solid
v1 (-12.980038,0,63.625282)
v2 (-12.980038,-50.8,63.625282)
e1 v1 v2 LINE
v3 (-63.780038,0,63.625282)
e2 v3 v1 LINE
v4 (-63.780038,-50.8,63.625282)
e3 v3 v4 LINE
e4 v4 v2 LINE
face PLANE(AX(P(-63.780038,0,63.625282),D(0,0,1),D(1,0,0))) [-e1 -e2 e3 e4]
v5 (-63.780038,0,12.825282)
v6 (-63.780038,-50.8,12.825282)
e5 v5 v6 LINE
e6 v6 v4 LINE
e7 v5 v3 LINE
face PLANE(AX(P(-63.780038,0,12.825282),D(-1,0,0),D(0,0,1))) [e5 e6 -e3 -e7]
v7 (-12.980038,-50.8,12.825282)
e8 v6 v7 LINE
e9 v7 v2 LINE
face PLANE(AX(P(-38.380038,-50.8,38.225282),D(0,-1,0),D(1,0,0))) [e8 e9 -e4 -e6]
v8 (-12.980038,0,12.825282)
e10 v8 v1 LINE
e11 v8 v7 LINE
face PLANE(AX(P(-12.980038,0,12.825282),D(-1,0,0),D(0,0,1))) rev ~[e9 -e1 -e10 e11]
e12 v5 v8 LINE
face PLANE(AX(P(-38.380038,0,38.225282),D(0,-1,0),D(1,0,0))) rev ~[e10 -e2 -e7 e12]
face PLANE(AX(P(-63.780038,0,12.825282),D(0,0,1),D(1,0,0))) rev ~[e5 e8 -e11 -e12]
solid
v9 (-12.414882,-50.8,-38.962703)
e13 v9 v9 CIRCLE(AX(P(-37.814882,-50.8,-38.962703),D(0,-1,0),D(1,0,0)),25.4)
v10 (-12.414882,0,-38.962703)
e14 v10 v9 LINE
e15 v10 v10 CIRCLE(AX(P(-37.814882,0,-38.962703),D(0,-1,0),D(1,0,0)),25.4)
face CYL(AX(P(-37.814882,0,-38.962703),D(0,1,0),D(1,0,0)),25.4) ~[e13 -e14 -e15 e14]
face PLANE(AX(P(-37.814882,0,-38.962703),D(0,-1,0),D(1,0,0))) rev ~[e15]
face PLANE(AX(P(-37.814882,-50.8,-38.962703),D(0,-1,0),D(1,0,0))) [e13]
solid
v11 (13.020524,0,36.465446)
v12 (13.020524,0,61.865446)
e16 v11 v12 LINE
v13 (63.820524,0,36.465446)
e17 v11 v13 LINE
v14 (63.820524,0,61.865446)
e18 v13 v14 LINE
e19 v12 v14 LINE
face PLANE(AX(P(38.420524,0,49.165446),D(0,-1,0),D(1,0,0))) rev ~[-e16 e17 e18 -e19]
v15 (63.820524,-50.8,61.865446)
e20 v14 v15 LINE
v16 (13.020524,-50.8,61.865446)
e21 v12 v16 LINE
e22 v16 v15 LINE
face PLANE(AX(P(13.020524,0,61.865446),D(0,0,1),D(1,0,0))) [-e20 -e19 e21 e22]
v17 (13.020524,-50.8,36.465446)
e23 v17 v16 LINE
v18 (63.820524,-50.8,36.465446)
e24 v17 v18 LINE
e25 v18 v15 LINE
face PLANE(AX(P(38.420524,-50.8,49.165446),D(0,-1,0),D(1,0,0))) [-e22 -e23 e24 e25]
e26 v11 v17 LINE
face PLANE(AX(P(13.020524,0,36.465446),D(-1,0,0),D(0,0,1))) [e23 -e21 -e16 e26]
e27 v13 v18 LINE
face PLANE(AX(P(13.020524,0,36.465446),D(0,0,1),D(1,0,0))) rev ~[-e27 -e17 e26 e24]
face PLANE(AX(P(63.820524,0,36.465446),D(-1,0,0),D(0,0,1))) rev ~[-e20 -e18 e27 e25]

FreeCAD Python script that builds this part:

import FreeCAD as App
import Part
import Sketcher
from FreeCAD import Vector
Q = App.Units.Quantity

doc = App.newDocument("Part")
body = doc.addObject("PartDesign::Body", "Body")
body.AllowCompound = True

sketch1 = doc.addObject("Sketcher::SketchObject", "Sketch")
body.addObject(sketch1)
sketch1.AttachmentSupport = (doc.XZ_Plane, [""])
sketch1.MapMode = "FlatFace"
sketch1.addGeometry([
    Part.LineSegment(Vector(-64, 64, 0), Vector(-64, 13, 0)),
    Part.LineSegment(Vector(-64, 13, 0), Vector(-13, 13, 0)),
    Part.LineSegment(Vector(-13, 13, 0), Vector(-13, 64, 0)),
    Part.LineSegment(Vector(-13, 64, 0), Vector(-64, 64, 0)),
    Part.Circle(Vector(-38, -39, 0), Vector(0, 0, 1), 25),
    Part.LineSegment(Vector(13, 62, 0), Vector(13, 36, 0)),
    Part.LineSegment(Vector(13, 36, 0), Vector(64, 36, 0)),
    Part.LineSegment(Vector(64, 36, 0), Vector(64, 62, 0)),
    Part.LineSegment(Vector(64, 62, 0), Vector(13, 62, 0)),
], False)
sketch1.addConstraint([
    Sketcher.Constraint("Coincident", 0, 2, 1, 1),
    Sketcher.Constraint("Coincident", 1, 2, 2, 1),
    Sketcher.Constraint("Coincident", 2, 2, 3, 1),
    Sketcher.Constraint("Coincident", 3, 2, 0, 1),
    Sketcher.Constraint("Coincident", 5, 2, 6, 1),
    Sketcher.Constraint("Coincident", 6, 2, 7, 1),
    Sketcher.Constraint("Coincident", 7, 2, 8, 1),
    Sketcher.Constraint("Coincident", 8, 2, 5, 1),
    Sketcher.Constraint("Vertical", 0),
    Sketcher.Constraint("Horizontal", 1),
    Sketcher.Constraint("Vertical", 2),
    Sketcher.Constraint("Horizontal", 3),
    Sketcher.Constraint("Vertical", 5),
    Sketcher.Constraint("Horizontal", 6),
    Sketcher.Constraint("Vertical", 7),
    Sketcher.Constraint("Horizontal", 8),
    Sketcher.Constraint("Equal", 3, 6),
    Sketcher.Constraint("Equal", 8, 0),
    Sketcher.Constraint("Diameter", 4, Q("2 in")),
    Sketcher.Constraint("DistanceX", 1, 1, 1, 2, Q("2 in")),
    Sketcher.Constraint("DistanceY", 5, 2, 5, 1, Q("1 in")),
    Sketcher.Constraint("DistanceX", 4, 3, -1, 1, Q("37.814882 mm")),
    Sketcher.Constraint("DistanceX", 0, 2, 5, 2, Q("76.800562 mm")),
    Sketcher.Constraint("DistanceY", 4, 3, 5, 2, Q("75.428149 mm")),
    Sketcher.Constraint("DistanceY", 4, 3, -1, 1, Q("38.962703 mm")),
    Sketcher.Constraint("DistanceX", 0, 2, -1, 1, Q("63.780038 mm")),
    Sketcher.Constraint("DistanceY", -1, 1, 0, 2, Q("12.825282 mm")),
])
pad1 = doc.addObject("PartDesign::Pad", "Pad")
body.addObject(pad1)
pad1.Profile = sketch1
pad1.Length = Q("2 in")

doc.recompute()
